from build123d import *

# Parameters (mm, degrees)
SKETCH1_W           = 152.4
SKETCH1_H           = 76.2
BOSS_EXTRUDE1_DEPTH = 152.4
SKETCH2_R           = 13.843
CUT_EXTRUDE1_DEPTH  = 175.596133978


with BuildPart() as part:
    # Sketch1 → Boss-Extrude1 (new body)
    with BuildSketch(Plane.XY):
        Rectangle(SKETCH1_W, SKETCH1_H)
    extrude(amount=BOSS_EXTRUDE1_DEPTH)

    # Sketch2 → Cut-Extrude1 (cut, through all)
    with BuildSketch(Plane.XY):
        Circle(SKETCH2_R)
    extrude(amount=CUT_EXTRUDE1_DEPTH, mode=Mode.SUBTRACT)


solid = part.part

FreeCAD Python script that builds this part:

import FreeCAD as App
import Part
import Sketcher
Q = App.Units.Quantity


def add_polygon(sketch, points):
    """Adds a closed chain of lines whose ends are joined by coincident constraints."""
    first, n = sketch.GeometryCount, len(points)
    for a, b in zip(points, points[1:] + points[:1]):
        sketch.addGeometry(Part.LineSegment(App.Vector(*a, 0), App.Vector(*b, 0)), False)
    for i in range(n):
        sketch.addConstraint(Sketcher.Constraint("Coincident", first + i, 2, first + (i + 1) % n, 1))

doc = App.newDocument("Part")
params = doc.addObject("Spreadsheet::Sheet", "Params")
for row, (alias, value) in enumerate([
    ("sketch1_width", "6 in"),
    ("sketch1_height", "3 in"),
    ("pad1_length", "6 in"),
    ("sketch2_diameter", "1.09 in"),
], start=1):
    params.set(f"A{row}", alias)
    params.set(f"B{row}", "=" + value)
    params.setAlias(f"B{row}", alias)

body = doc.addObject("PartDesign::Body", "Body")

# Sketch on XY plane
sketch1 = body.newObject("Sketcher::SketchObject", "Sketch")
sketch1.AttachmentSupport = (doc.getObject("XY_Plane"), [""])
sketch1.MapMode = "FlatFace"
add_polygon(sketch1, [(-76.2, 38.1), (-76.2, -38.1), (76.2, -38.1), (76.2, 38.1)])  # lines 0-3
sketch1.addConstraint([
    Sketcher.Constraint("Vertical", 0),
    Sketcher.Constraint("Horizontal", 1),
    Sketcher.Constraint("Vertical", 2),
    Sketcher.Constraint("Horizontal", 3),
    Sketcher.Constraint("Symmetric", 0, 2, 2, 2, -1, 1),
    Sketcher.Constraint("DistanceX", 1, 1, 1, 2, Q("6 in")),
    Sketcher.Constraint("DistanceY", 0, 2, 0, 1, Q("3 in")),
])
sketch1.setExpression("Constraints[9]", "Params.sketch1_width")
sketch1.setExpression("Constraints[10]", "Params.sketch1_height")
pad1 = body.newObject("PartDesign::Pad", "Pad")
pad1.Profile = sketch1
pad1.setExpression("Length", "Params.pad1_length")

# Sketch on XY plane
sketch2 = body.newObject("Sketcher::SketchObject", "Sketch001")
sketch2.AttachmentSupport = (doc.getObject("XY_Plane"), [""])
sketch2.MapMode = "FlatFace"
sketch2.addGeometry(Part.Circle(App.Vector(0, 0, 0), App.Vector(0, 0, 1), 13.843), False)
sketch2.addConstraint([
    Sketcher.Constraint("Coincident", 0, 3, -1, 1),
    Sketcher.Constraint("Diameter", 0, Q("1.09 in")),
])
sketch2.setExpression("Constraints[1]", "Params.sketch2_diameter")
pocket1 = body.newObject("PartDesign::Pocket", "Pocket")
pocket1.Profile = sketch2
pocket1.Type = "ThroughAll"
pocket1.Reversed = True

doc.recompute()
